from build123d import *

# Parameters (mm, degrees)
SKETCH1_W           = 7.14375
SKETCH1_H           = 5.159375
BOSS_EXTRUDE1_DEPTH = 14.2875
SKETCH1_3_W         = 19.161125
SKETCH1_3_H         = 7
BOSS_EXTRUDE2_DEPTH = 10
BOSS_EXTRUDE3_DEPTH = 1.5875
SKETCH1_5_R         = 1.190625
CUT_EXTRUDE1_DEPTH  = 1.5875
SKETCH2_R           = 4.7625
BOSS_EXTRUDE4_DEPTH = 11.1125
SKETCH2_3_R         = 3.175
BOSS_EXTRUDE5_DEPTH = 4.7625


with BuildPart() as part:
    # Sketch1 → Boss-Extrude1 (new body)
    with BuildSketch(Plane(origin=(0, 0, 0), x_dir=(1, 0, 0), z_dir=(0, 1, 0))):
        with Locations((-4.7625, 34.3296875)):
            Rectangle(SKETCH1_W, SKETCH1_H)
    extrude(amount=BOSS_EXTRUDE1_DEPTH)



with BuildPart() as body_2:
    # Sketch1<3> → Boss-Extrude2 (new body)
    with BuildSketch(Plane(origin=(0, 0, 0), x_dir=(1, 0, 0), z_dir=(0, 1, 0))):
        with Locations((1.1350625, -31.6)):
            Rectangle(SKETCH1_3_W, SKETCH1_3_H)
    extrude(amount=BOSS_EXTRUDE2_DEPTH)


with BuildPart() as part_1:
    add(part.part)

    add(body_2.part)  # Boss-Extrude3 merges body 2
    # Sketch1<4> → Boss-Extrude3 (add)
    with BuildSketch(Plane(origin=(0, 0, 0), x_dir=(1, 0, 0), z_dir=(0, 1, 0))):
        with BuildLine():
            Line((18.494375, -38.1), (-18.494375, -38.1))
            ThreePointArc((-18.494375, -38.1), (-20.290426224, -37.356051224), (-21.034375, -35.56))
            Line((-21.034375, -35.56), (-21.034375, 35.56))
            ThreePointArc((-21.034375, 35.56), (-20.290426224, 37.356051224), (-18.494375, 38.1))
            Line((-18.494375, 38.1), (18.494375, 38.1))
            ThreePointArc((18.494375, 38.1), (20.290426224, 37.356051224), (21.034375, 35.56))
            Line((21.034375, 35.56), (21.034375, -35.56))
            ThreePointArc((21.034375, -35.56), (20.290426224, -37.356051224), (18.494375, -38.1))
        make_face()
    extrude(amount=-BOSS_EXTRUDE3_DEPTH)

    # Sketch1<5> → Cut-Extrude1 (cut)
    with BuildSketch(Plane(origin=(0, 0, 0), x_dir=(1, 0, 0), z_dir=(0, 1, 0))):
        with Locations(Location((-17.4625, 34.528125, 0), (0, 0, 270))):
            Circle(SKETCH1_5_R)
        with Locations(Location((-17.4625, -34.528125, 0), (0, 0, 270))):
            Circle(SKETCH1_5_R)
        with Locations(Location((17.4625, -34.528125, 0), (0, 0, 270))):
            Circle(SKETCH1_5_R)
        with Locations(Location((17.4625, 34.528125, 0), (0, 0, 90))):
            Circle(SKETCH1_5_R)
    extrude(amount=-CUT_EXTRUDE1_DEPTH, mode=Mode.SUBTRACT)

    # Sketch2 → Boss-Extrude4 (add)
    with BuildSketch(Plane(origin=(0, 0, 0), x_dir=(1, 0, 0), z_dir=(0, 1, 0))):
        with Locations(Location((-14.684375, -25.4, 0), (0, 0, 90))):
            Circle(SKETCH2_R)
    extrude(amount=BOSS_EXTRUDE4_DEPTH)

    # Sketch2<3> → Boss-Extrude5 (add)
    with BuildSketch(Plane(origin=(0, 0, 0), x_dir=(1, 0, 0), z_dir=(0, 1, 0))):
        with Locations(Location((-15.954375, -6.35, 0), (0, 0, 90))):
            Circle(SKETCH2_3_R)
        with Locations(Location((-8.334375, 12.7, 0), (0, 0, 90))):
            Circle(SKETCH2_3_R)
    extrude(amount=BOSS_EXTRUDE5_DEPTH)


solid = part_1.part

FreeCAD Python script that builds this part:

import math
import FreeCAD as App
import Part
import Sketcher
from FreeCAD import Vector
Q = App.Units.Quantity

doc = App.newDocument("Part")
body = doc.addObject("PartDesign::Body", "Body")

# Sketch on XZ plane
sketch1 = body.newObject("Sketcher::SketchObject", "Sketch")
sketch1.AttachmentSupport = (doc.getObject("XZ_Plane"), [""])
sketch1.MapMode = "FlatFace"
sketch1.addGeometry([
    Part.LineSegment(Vector(-8, -37, 0), Vector(-8, -32, 0)),
    Part.LineSegment(Vector(-8, -32, 0), Vector(-1, -32, 0)),
    Part.LineSegment(Vector(-1, -32, 0), Vector(-1, -37, 0)),
    Part.LineSegment(Vector(-1, -37, 0), Vector(-8, -37, 0)),
], False)
sketch1.addConstraint([
    Sketcher.Constraint("Coincident", 0, 2, 1, 1),
    Sketcher.Constraint("Coincident", 1, 2, 2, 1),
    Sketcher.Constraint("Coincident", 2, 2, 3, 1),
    Sketcher.Constraint("Coincident", 3, 2, 0, 1),
    Sketcher.Constraint("Vertical", 0),
    Sketcher.Constraint("Horizontal", 1),
    Sketcher.Constraint("Vertical", 2),
    Sketcher.Constraint("Horizontal", 3),
    Sketcher.Constraint("DistanceX", 1, 1, 1, 2, Q("0.28125 in")),
    Sketcher.Constraint("DistanceY", 0, 1, 0, 2, Q("0.203125 in")),
    Sketcher.Constraint("DistanceY", 0, 2, -1, 1, Q("1.25 in")),
    Sketcher.Constraint("DistanceX", 0, 2, -1, 1, Q("0.328125 in")),
])
pad1 = body.newObject("PartDesign::Pad", "Pad")
pad1.Profile = sketch1
pad1.Length = Q("0.5625 in")
pad1.Reversed = True
body2 = doc.addObject("PartDesign::Body", "Body001")

# Sketch on XZ plane
sketch2 = body2.newObject("Sketcher::SketchObject", "Sketch001")
sketch2.AttachmentSupport = (doc.getObject("XZ_Plane001"), [""])
sketch2.MapMode = "FlatFace"
sketch2.addGeometry([
    Part.LineSegment(Vector(-8, 28, 0), Vector(-8, 35, 0)),
    Part.LineSegment(Vector(-8, 35, 0), Vector(11, 35, 0)),
    Part.LineSegment(Vector(11, 35, 0), Vector(11, 28, 0)),
    Part.LineSegment(Vector(11, 28, 0), Vector(-8, 28, 0)),
], False)
sketch2.addConstraint([
    Sketcher.Constraint("Coincident", 0, 2, 1, 1),
    Sketcher.Constraint("Coincident", 1, 2, 2, 1),
    Sketcher.Constraint("Coincident", 2, 2, 3, 1),
    Sketcher.Constraint("Coincident", 3, 2, 0, 1),
    Sketcher.Constraint("Vertical", 0),
    Sketcher.Constraint("Horizontal", 1),
    Sketcher.Constraint("Vertical", 2),
    Sketcher.Constraint("Horizontal", 3),
    Sketcher.Constraint("DistanceX", -1, 1, 1, 2, Q("0.421875 in")),
    Sketcher.Constraint("DistanceY", 0, 1, 0, 2, Q("7 mm")),
    Sketcher.Constraint("DistanceX", 0, 2, -1, 1, Q("0.3325 in")),
    Sketcher.Constraint("DistanceY", -1, 1, 0, 2, Q("35.1 mm")),
])
pad2 = body2.newObject("PartDesign::Pad", "Pad001")
pad2.Profile = sketch2
pad2.Length = 10
pad2.Reversed = True
body.AllowCompound = True
doc.recompute()

boolean = body.newObject("PartDesign::Boolean", "Boolean")
boolean.Type = "Fuse"
boolean.addObjects([body2])

# Sketch on XZ plane
sketch3 = body.newObject("Sketcher::SketchObject", "Sketch002")
sketch3.AttachmentSupport = (doc.getObject("XZ_Plane"), [""])
sketch3.MapMode = "FlatFace"
sketch3.addGeometry([
    Part.LineSegment(Vector(-18.5, 38.1, 0), Vector(18.5, 38.1, 0)),  # 0
    Part.ArcOfCircle(Part.Circle(Vector(18.5, 35.6, 0), Vector(0, 0, 1), 2.5), math.radians(0), math.radians(90)),  # 1
    Part.LineSegment(Vector(21, 35.6, 0), Vector(21, -35.6, 0)),  # 2
    Part.ArcOfCircle(Part.Circle(Vector(18.5, -35.6, 0), Vector(0, 0, 1), 2.5), math.radians(-90), math.radians(0)),  # 3
    Part.LineSegment(Vector(18.5, -38.1, 0), Vector(-18.5, -38.1, 0)),  # 4
    Part.ArcOfCircle(Part.Circle(Vector(-18.5, -35.6, 0), Vector(0, 0, 1), 2.5), math.radians(-180), math.radians(-90)),  # 5
    Part.LineSegment(Vector(-21, -35.6, 0), Vector(-21, 35.6, 0)),  # 6
    Part.ArcOfCircle(Part.Circle(Vector(-18.5, 35.6, 0), Vector(0, 0, 1), 2.5), math.radians(90), math.radians(180)),  # 7
], False)
sketch3.addConstraint([
    Sketcher.Constraint("Tangent", 0, 2, 1, 2),
    Sketcher.Constraint("Tangent", 1, 1, 2, 1),
    Sketcher.Constraint("Tangent", 2, 2, 3, 2),
    Sketcher.Constraint("Tangent", 3, 1, 4, 1),
    Sketcher.Constraint("Tangent", 4, 2, 5, 2),
    Sketcher.Constraint("Tangent", 5, 1, 6, 1),
    Sketcher.Constraint("Tangent", 6, 2, 7, 2),
    Sketcher.Constraint("Tangent", 7, 1, 0, 1),
    Sketcher.Constraint("Horizontal", 0),
    Sketcher.Constraint("Vertical", 2),
    Sketcher.Constraint("Horizontal", 4),
    Sketcher.Constraint("Vertical", 6),
    Sketcher.Constraint("Equal", 1, 3),
    Sketcher.Constraint("Equal", 3, 5),
    Sketcher.Constraint("Equal", 5, 7),
    Sketcher.Constraint("Symmetric", 1, 3, 5, 3, -1, 1),
    Sketcher.Constraint("Radius", 1, Q("0.1 in")),
    Sketcher.Constraint("DistanceY", 2, 2, 2, 1, Q("2.8 in")),
    Sketcher.Constraint("DistanceX", -1, 1, 1, 1, Q("0.828125 in")),
])
pad3 = body.newObject("PartDesign::Pad", "Pad002")
pad3.Profile = sketch3
pad3.Length = Q("0.0625 in")

# Sketch on XZ plane
sketch4 = body.newObject("Sketcher::SketchObject", "Sketch003")
sketch4.AttachmentSupport = (doc.getObject("XZ_Plane"), [""])
sketch4.MapMode = "FlatFace"
sketch4.addGeometry([
    Part.Circle(Vector(-17.5, -34.5, 0), Vector(0, 0, 1), 1.2),
    Part.Circle(Vector(-17.5, 34.5, 0), Vector(0, 0, 1), 1.2),
    Part.Circle(Vector(17.5, 34.5, 0), Vector(0, 0, 1), 1.2),
    Part.Circle(Vector(17.5, -34.5, 0), Vector(0, 0, 1), 1.2),
], False)
sketch4.addConstraint([
    Sketcher.Constraint("Equal", 0, 1),
    Sketcher.Constraint("Equal", 1, 2),
    Sketcher.Constraint("Equal", 2, 3),
    Sketcher.Constraint("Symmetric", 0, 3, 2, 3, -1, 1),
    Sketcher.Constraint("Symmetric", 1, 3, 3, 3, -1, 1),
    Sketcher.Constraint("Symmetric", 1, 3, 2, 3, -2),
    Sketcher.Constraint("Diameter", 0, Q("0.09375 in")),
    Sketcher.Constraint("DistanceX", 0, 3, -1, 1, Q("0.6875 in")),
    Sketcher.Constraint("DistanceY", 0, 3, -1, 1, Q("1.359375 in")),
])
pocket1 = body.newObject("PartDesign::Pocket", "Pocket")
pocket1.Profile = sketch4
pocket1.Length = Q("0.0625 in")
pocket1.Reversed = True

# Sketch on XZ plane
sketch5 = body.newObject("Sketcher::SketchObject", "Sketch004")
sketch5.AttachmentSupport = (doc.getObject("XZ_Plane"), [""])
sketch5.MapMode = "FlatFace"
sketch5.addGeometry(Part.Circle(Vector(-14.7, 25.4, 0), Vector(0, 0, 1), 4.8), False)
sketch5.addConstraint([
    Sketcher.Constraint("Diameter", 0, Q("0.375 in")),
    Sketcher.Constraint("DistanceY", -1, 1, 0, 3, Q("1 in")),
    Sketcher.Constraint("DistanceX", 0, 3, -1, 1, Q("0.578125 in")),
])
pad4 = body.newObject("PartDesign::Pad", "Pad003")
pad4.Profile = sketch5
pad4.Length = Q("0.4375 in")
pad4.Reversed = True

# Sketch on XZ plane
sketch6 = body.newObject("Sketcher::SketchObject", "Sketch005")
sketch6.AttachmentSupport = (doc.getObject("XZ_Plane"), [""])
sketch6.MapMode = "FlatFace"
sketch6.addGeometry([
    Part.Circle(Vector(-16, 6.3, 0), Vector(0, 0, 1), 3.2),
    Part.Circle(Vector(-8.3, -12.7, 0), Vector(0, 0, 1), 3.2),
], False)
sketch6.addConstraint([
    Sketcher.Constraint("Equal", 0, 1),
    Sketcher.Constraint("Diameter", 0, Q("0.25 in")),
    Sketcher.Constraint("DistanceY", 1, 3, -1, 1, Q("0.5 in")),
    Sketcher.Constraint("DistanceX", 0, 3, 1, 3, Q("0.3 in")),
    Sketcher.Constraint("DistanceY", -1, 1, 0, 3, Q("0.25 in")),
    Sketcher.Constraint("DistanceX", 1, 3, -1, 1, Q("0.328125 in")),
])
pad5 = body.newObject("PartDesign::Pad", "Pad004")
pad5.Profile = sketch6
pad5.Length = Q("0.1875 in")
pad5.Reversed = True

doc.recompute()
